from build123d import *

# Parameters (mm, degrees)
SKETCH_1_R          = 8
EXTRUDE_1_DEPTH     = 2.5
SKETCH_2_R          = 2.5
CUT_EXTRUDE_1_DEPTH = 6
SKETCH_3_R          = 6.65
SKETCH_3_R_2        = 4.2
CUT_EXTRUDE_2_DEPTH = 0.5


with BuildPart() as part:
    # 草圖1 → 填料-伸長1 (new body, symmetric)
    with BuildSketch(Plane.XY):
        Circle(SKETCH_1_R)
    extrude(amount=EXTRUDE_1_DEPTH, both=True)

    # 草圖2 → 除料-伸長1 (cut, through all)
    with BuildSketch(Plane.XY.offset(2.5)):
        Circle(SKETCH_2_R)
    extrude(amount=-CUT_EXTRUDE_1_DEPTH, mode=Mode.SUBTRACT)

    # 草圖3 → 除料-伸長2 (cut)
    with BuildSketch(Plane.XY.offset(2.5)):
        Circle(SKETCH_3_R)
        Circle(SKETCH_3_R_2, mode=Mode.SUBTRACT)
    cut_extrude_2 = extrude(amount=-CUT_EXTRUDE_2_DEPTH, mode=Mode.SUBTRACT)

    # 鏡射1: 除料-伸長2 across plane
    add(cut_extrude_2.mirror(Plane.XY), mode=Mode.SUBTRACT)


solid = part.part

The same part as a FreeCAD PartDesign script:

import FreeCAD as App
import Part
import Sketcher
Q = App.Units.Quantity

doc = App.newDocument("Part")
body = doc.addObject("PartDesign::Body", "Body")

# Sketch on XY plane
sketch1 = body.newObject("Sketcher::SketchObject", "Sketch")
sketch1.AttachmentSupport = (doc.getObject("XY_Plane"), [""])
sketch1.MapMode = "FlatFace"
sketch1.addGeometry(Part.Circle(App.Vector(0, 0, 0), App.Vector(0, 0, 1), 8), False)
sketch1.addConstraint(Sketcher.Constraint("Coincident", 0, 3, -1, 1))
sketch1.addConstraint(Sketcher.Constraint("Diameter", 0, Q("16 mm")))
pad1 = body.newObject("PartDesign::Pad", "Pad")
pad1.Profile = sketch1
pad1.Length = 5
pad1.Midplane = True

# Sketch on XY plane
sketch2 = body.newObject("Sketcher::SketchObject", "Sketch001")
sketch2.AttachmentSupport = (doc.getObject("XY_Plane"), [""])
sketch2.MapMode = "FlatFace"
sketch2.AttachmentOffset = App.Placement(App.Vector(0, 0, 2.5), App.Rotation())
sketch2.addGeometry(Part.Circle(App.Vector(0, 0, 0), App.Vector(0, 0, 1), 2.5), False)
sketch2.addConstraint(Sketcher.Constraint("Coincident", 0, 3, -1, 1))
sketch2.addConstraint(Sketcher.Constraint("Diameter", 0, Q("5 mm")))
pocket1 = body.newObject("PartDesign::Pocket", "Pocket")
pocket1.Profile = sketch2
pocket1.Type = "ThroughAll"

# Sketch on XY plane
sketch3 = body.newObject("Sketcher::SketchObject", "Sketch002")
sketch3.AttachmentSupport = (doc.getObject("XY_Plane"), [""])
sketch3.MapMode = "FlatFace"
sketch3.AttachmentOffset = App.Placement(App.Vector(0, 0, 2.5), App.Rotation())
sketch3.addGeometry(Part.Circle(App.Vector(0, 0, 0), App.Vector(0, 0, 1), 6.65), False)
sketch3.addGeometry(Part.Circle(App.Vector(0, 0, 0), App.Vector(0, 0, 1), 4.2), False)
sketch3.addConstraint(Sketcher.Constraint("Coincident", 0, 3, -1, 1))
sketch3.addConstraint(Sketcher.Constraint("Coincident", 1, 3, -1, 1))
sketch3.addConstraint(Sketcher.Constraint("Diameter", 0, Q("13.3 mm")))
sketch3.addConstraint(Sketcher.Constraint("Diameter", 1, Q("8.4 mm")))
pocket2 = body.newObject("PartDesign::Pocket", "Pocket001")
pocket2.Profile = sketch3
pocket2.Length = 0.5
doc.recompute()

mirrored = body.newObject("PartDesign::Mirrored", "Mirrored")
mirrored.Originals = [pocket2]
mirrored.MirrorPlane = (doc.getObject("XY_Plane"), [""])
body.Tip = mirrored

doc.recompute()
